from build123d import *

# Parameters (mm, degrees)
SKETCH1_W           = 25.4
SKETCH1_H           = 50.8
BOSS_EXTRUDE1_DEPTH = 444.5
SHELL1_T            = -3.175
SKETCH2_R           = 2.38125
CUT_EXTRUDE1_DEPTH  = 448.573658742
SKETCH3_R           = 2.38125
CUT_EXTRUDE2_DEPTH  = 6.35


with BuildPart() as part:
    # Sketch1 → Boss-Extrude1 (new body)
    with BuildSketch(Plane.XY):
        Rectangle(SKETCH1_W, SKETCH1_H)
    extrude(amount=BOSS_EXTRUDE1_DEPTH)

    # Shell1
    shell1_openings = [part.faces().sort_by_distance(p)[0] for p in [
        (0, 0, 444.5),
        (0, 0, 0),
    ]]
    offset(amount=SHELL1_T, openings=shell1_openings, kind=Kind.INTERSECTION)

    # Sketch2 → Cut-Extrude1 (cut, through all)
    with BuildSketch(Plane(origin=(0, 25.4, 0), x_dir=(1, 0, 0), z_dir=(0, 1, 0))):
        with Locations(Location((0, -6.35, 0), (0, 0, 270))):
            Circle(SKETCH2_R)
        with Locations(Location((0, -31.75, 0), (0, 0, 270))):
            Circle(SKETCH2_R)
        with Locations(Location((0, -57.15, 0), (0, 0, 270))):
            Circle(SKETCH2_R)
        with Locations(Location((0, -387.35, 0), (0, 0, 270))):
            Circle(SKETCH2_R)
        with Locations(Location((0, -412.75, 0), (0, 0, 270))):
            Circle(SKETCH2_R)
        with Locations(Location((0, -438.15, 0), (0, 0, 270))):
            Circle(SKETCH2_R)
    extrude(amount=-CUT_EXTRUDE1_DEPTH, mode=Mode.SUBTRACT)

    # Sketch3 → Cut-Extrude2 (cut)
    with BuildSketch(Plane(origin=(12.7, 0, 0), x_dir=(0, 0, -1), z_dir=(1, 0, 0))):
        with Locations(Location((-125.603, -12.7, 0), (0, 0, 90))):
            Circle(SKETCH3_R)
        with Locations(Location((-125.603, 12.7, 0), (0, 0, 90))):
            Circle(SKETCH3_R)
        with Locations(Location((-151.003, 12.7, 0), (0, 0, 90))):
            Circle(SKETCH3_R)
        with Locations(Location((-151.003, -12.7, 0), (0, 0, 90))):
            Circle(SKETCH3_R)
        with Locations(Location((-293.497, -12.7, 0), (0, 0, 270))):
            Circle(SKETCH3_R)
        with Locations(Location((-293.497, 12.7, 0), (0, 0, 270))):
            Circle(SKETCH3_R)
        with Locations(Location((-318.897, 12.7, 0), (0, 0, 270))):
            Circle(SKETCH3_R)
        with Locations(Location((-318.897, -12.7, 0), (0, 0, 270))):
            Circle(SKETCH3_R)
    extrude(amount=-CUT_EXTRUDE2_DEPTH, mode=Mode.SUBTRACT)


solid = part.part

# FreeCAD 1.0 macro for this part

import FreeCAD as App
import Part
import Sketcher

V = App.Vector
Q = App.Units.Quantity


def faces_at(feature, points):
    """Names of the faces that lie closest to the given points."""
    faces = feature.Shape.Faces
    near = lambda p: min(range(len(faces)), key=lambda i: faces[i].distToShape(Part.Vertex(*p))[0])
    return sorted({f"Face{near(p) + 1}" for p in points})

doc = App.newDocument("Part")
body = doc.addObject("PartDesign::Body", "Body")

# Sketch on XY plane
sketch1 = body.newObject("Sketcher::SketchObject", "Sketch")
sketch1.AttachmentSupport = (doc.getObject("XY_Plane"), [""])
sketch1.MapMode = "FlatFace"
sketch1.addGeometry(Part.LineSegment(V(-13, 25, 0), V(-13, -25, 0)), False)
sketch1.addGeometry(Part.LineSegment(V(-13, -25, 0), V(13, -25, 0)), False)
sketch1.addGeometry(Part.LineSegment(V(13, -25, 0), V(13, 25, 0)), False)
sketch1.addGeometry(Part.LineSegment(V(13, 25, 0), V(-13, 25, 0)), False)
sketch1.addConstraint(Sketcher.Constraint("Coincident", 0, 2, 1, 1))
sketch1.addConstraint(Sketcher.Constraint("Coincident", 1, 2, 2, 1))
sketch1.addConstraint(Sketcher.Constraint("Coincident", 2, 2, 3, 1))
sketch1.addConstraint(Sketcher.Constraint("Coincident", 3, 2, 0, 1))
sketch1.addConstraint(Sketcher.Constraint("Vertical", 0))
sketch1.addConstraint(Sketcher.Constraint("Horizontal", 1))
sketch1.addConstraint(Sketcher.Constraint("Vertical", 2))
sketch1.addConstraint(Sketcher.Constraint("Horizontal", 3))
sketch1.addConstraint(Sketcher.Constraint("Symmetric", 0, 2, 2, 2, -1, 1))
sketch1.addConstraint(Sketcher.Constraint("DistanceX", 1, 1, 1, 2, Q("1 in")))
sketch1.addConstraint(Sketcher.Constraint("DistanceY", 0, 2, 0, 1, Q("2 in")))
pad1 = body.newObject("PartDesign::Pad", "Pad")
pad1.Profile = sketch1
pad1.Length = Q("17.5 in")
doc.recompute()

thickness = body.newObject("PartDesign::Thickness", "Thickness")
thickness.Base = (pad1, faces_at(pad1, [(0, 0, 444.5), (0, 0, 0)]))
thickness.Value = Q("0.125 in")
thickness.Reversed = True
thickness.Join = "Intersection"

# Sketch on XZ plane
sketch2 = body.newObject("Sketcher::SketchObject", "Sketch001")
sketch2.AttachmentSupport = (doc.getObject("XZ_Plane"), [""])
sketch2.MapMode = "FlatFace"
sketch2.AttachmentOffset = App.Placement(V(0, 0, -1 * 25.4), App.Rotation())
sketch2.addGeometry(Part.Circle(V(0, 6.3, 0), V(0, 0, 1), 2.4), False)
sketch2.addGeometry(Part.Circle(V(0, 31.8, 0), V(0, 0, 1), 2.4), False)
sketch2.addGeometry(Part.Circle(V(0, 57.1, 0), V(0, 0, 1), 2.4), False)
sketch2.addGeometry(Part.Circle(V(0, 387.4, 0), V(0, 0, 1), 2.4), False)
sketch2.addGeometry(Part.Circle(V(0, 412.8, 0), V(0, 0, 1), 2.4), False)
sketch2.addGeometry(Part.Circle(V(0, 438.1, 0), V(0, 0, 1), 2.4), False)
sketch2.addConstraint(Sketcher.Constraint("Equal", 0, 1))
sketch2.addConstraint(Sketcher.Constraint("Equal", 1, 2))
sketch2.addConstraint(Sketcher.Constraint("Equal", 2, 3))
sketch2.addConstraint(Sketcher.Constraint("Equal", 3, 4))
sketch2.addConstraint(Sketcher.Constraint("Equal", 4, 5))
sketch2.addConstraint(Sketcher.Constraint("PointOnObject", 0, 3, -2))
sketch2.addConstraint(Sketcher.Constraint("PointOnObject", 1, 3, -2))
sketch2.addConstraint(Sketcher.Constraint("PointOnObject", 2, 3, -2))
sketch2.addConstraint(Sketcher.Constraint("PointOnObject", 3, 3, -2))
sketch2.addConstraint(Sketcher.Constraint("PointOnObject", 4, 3, -2))
sketch2.addConstraint(Sketcher.Constraint("PointOnObject", 5, 3, -2))
sketch2.addConstraint(Sketcher.Constraint("Diameter", 0, Q("0.1875 in")))
sketch2.addConstraint(Sketcher.Constraint("DistanceY", 0, 3, 1, 3, Q("1 in")))
sketch2.addConstraint(Sketcher.Constraint("DistanceY", 1, 3, 2, 3, Q("1 in")))
sketch2.addConstraint(Sketcher.Constraint("DistanceY", 2, 3, 3, 3, Q("13 in")))
sketch2.addConstraint(Sketcher.Constraint("DistanceY", 3, 3, 4, 3, Q("1 in")))
sketch2.addConstraint(Sketcher.Constraint("DistanceY", 4, 3, 5, 3, Q("1 in")))
sketch2.addConstraint(Sketcher.Constraint("DistanceY", -1, 1, 0, 3, Q("0.25 in")))
pocket1 = body.newObject("PartDesign::Pocket", "Pocket")
pocket1.Profile = sketch2
pocket1.Type = "ThroughAll"
pocket1.Reversed = True

# Sketch on YZ plane
sketch3 = body.newObject("Sketcher::SketchObject", "Sketch002")
sketch3.AttachmentSupport = (doc.getObject("YZ_Plane"), [""])
sketch3.MapMode = "FlatFace"
sketch3.AttachmentOffset = App.Placement(V(0, 0, 0.5 * 25.4), App.Rotation())
sketch3.addGeometry(Part.Circle(V(-12.7, 125.6, 0), V(0, 0, 1), 2.4), False)
sketch3.addGeometry(Part.Circle(V(12.7, 125.6, 0), V(0, 0, 1), 2.4), False)
sketch3.addGeometry(Part.Circle(V(12.7, 151, 0), V(0, 0, 1), 2.4), False)
sketch3.addGeometry(Part.Circle(V(-12.7, 151, 0), V(0, 0, 1), 2.4), False)
sketch3.addGeometry(Part.Circle(V(-12.7, 293.5, 0), V(0, 0, 1), 2.4), False)
sketch3.addGeometry(Part.Circle(V(12.7, 293.5, 0), V(0, 0, 1), 2.4), False)
sketch3.addGeometry(Part.Circle(V(12.7, 318.9, 0), V(0, 0, 1), 2.4), False)
sketch3.addGeometry(Part.Circle(V(-12.7, 318.9, 0), V(0, 0, 1), 2.4), False)
sketch3.addConstraint(Sketcher.Constraint("Equal", 0, 1))
sketch3.addConstraint(Sketcher.Constraint("Equal", 1, 2))
sketch3.addConstraint(Sketcher.Constraint("Equal", 2, 3))
sketch3.addConstraint(Sketcher.Constraint("Equal", 3, 4))
sketch3.addConstraint(Sketcher.Constraint("Equal", 4, 5))
sketch3.addConstraint(Sketcher.Constraint("Equal", 5, 6))
sketch3.addConstraint(Sketcher.Constraint("Equal", 6, 7))
sketch3.addConstraint(Sketcher.Constraint("Symmetric", 0, 3, 1, 3, -2))
sketch3.addConstraint(Sketcher.Constraint("Symmetric", 2, 3, 3, 3, -2))
sketch3.addConstraint(Sketcher.Constraint("Symmetric", 4, 3, 5, 3, -2))
sketch3.addConstraint(Sketcher.Constraint("Symmetric", 6, 3, 7, 3, -2))
sketch3.addConstraint(Sketcher.Constraint("Vertical", 1, 3, 2, 3))
sketch3.addConstraint(Sketcher.Constraint("Vertical", 3, 3, 4, 3))
sketch3.addConstraint(Sketcher.Constraint("Vertical", 5, 3, 6, 3))
sketch3.addConstraint(Sketcher.Constraint("Diameter", 0, Q("0.1875 in")))
sketch3.addConstraint(Sketcher.Constraint("DistanceX", 0, 3, 1, 3, Q("1 in")))
sketch3.addConstraint(Sketcher.Constraint("DistanceY", 1, 3, 2, 3, Q("1 in")))
sketch3.addConstraint(Sketcher.Constraint("DistanceY", 5, 3, 6, 3, Q("1 in")))
sketch3.addConstraint(Sketcher.Constraint("DistanceY", 3, 3, 4, 3, Q("5.61 in")))
sketch3.addConstraint(Sketcher.Constraint("DistanceY", -1, 1, 0, 3, Q("4.945 in")))
pocket2 = body.newObject("PartDesign::Pocket", "Pocket001")
pocket2.Profile = sketch3
pocket2.Length = Q("0.25 in")

doc.recompute()
